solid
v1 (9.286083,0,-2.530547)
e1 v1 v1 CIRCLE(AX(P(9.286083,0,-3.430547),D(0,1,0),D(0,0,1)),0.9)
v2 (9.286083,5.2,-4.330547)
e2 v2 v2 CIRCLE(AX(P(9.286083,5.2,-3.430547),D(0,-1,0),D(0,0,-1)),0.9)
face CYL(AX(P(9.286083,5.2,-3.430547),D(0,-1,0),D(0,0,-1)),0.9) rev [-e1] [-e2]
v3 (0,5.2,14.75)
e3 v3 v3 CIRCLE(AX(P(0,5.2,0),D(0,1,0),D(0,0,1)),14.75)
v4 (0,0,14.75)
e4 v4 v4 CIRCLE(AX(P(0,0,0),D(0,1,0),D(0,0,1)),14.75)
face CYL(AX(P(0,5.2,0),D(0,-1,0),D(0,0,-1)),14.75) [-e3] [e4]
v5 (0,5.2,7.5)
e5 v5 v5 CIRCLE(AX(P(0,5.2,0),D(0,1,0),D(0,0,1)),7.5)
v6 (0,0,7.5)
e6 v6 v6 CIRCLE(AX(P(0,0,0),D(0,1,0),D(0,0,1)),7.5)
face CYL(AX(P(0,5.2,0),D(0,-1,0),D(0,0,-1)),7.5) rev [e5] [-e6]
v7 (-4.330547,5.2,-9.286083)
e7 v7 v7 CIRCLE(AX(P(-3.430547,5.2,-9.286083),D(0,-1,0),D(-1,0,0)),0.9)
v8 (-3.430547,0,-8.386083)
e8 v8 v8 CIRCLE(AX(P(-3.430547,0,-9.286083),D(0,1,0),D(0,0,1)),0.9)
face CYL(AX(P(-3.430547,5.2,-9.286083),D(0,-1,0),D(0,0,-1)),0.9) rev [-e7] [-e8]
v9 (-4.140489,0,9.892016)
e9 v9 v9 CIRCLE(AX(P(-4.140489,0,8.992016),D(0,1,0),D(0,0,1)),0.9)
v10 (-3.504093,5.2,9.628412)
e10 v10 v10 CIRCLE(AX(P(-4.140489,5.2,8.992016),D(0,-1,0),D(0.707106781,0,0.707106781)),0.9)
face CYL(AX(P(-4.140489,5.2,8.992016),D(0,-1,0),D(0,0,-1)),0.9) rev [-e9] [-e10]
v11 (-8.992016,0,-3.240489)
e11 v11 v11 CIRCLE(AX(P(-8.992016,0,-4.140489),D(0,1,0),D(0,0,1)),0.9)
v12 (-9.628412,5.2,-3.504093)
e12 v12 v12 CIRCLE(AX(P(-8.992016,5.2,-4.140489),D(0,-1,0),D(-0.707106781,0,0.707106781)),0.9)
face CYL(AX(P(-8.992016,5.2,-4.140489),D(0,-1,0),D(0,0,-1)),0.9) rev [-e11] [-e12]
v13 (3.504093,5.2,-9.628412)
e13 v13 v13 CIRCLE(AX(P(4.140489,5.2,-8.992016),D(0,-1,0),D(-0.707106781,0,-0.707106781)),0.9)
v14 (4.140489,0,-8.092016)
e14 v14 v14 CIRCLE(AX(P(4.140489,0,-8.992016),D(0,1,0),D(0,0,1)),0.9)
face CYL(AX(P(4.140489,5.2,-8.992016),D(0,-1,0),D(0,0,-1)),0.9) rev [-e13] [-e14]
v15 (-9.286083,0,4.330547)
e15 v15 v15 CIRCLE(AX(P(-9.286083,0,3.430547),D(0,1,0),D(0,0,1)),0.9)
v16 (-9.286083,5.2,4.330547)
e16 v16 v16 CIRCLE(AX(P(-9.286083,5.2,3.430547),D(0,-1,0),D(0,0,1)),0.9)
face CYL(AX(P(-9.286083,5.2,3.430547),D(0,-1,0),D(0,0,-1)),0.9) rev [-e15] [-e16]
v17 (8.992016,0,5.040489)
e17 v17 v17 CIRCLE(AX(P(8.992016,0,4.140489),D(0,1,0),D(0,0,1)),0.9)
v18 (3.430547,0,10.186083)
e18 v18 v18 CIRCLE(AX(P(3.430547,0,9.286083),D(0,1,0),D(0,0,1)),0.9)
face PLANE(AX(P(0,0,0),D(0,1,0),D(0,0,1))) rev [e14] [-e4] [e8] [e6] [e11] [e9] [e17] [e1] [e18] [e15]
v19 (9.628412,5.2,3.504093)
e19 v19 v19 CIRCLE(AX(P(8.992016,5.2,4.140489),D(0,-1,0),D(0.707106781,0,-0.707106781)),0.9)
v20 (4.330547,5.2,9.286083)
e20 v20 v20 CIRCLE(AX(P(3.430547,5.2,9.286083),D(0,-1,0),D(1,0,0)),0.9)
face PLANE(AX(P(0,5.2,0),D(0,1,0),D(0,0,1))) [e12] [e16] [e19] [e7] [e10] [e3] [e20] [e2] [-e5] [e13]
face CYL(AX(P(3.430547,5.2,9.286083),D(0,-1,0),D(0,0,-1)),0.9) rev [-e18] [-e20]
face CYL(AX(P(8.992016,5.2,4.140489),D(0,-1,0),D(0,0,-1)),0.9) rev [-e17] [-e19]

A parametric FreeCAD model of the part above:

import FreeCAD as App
import Part
import Sketcher

V = App.Vector

doc = App.newDocument("Part")
body = doc.addObject("PartDesign::Body", "Body")

# Sketch on XZ plane
sketch1 = doc.addObject("Sketcher::SketchObject", "Sketch")
body.addObject(sketch1)
sketch1.AttachmentSupport = (doc.XZ_Plane, [""])
sketch1.MapMode = "FlatFace"
sketch1.addGeometry([
    Part.Circle(V(0, 0, 0), V(0, 0, 1), 15),
    Part.Circle(V(0, 0, 0), V(0, 0, 1), 8),
], False)
sketch1.addConstraint([
    Sketcher.Constraint("Coincident", 0, 3, -1, 1),
    Sketcher.Constraint("Coincident", 1, 3, -1, 1),
    Sketcher.Constraint("Diameter", 1, 15.0),
    Sketcher.Constraint("Diameter", 0, 29.5),
])
pad1 = doc.addObject("PartDesign::Pad", "Pad")
body.addObject(pad1)
pad1.Profile = sketch1
pad1.Length = 5.2
pad1.Reversed = True

# Sketch on XZ plane
sketch2 = doc.addObject("Sketcher::SketchObject", "Sketch001")
body.addObject(sketch2)
sketch2.AttachmentSupport = (doc.XZ_Plane, [""])
sketch2.MapMode = "FlatFace"
sketch2.AttachmentOffset = App.Placement(V(0, 0, 7.2), App.Rotation())
sketch2.addGeometry(Part.Circle(V(9.3, -3.4, 0), V(0, 0, 1), 0.9), False)
sketch2.addConstraint([
    Sketcher.Constraint("Diameter", 0, 1.8),
    Sketcher.Constraint("DistanceX", -1, 1, 0, 3, 9.286083),
    Sketcher.Constraint("DistanceY", 0, 3, -1, 1, 3.430547),
])
pocket1 = doc.addObject("PartDesign::Pocket", "Pocket")
body.addObject(pocket1)
pocket1.Profile = sketch2
pocket1.Type = "ThroughAll"
doc.recompute()

polarpattern = doc.addObject("PartDesign::PolarPattern", "PolarPattern")
body.addObject(polarpattern)
polarpattern.Originals = [pocket1]
polarpattern.Axis = (doc.Y_Axis, [""])
polarpattern.Angle = 360
polarpattern.Occurrences = 8
body.Tip = polarpattern

doc.recompute()
